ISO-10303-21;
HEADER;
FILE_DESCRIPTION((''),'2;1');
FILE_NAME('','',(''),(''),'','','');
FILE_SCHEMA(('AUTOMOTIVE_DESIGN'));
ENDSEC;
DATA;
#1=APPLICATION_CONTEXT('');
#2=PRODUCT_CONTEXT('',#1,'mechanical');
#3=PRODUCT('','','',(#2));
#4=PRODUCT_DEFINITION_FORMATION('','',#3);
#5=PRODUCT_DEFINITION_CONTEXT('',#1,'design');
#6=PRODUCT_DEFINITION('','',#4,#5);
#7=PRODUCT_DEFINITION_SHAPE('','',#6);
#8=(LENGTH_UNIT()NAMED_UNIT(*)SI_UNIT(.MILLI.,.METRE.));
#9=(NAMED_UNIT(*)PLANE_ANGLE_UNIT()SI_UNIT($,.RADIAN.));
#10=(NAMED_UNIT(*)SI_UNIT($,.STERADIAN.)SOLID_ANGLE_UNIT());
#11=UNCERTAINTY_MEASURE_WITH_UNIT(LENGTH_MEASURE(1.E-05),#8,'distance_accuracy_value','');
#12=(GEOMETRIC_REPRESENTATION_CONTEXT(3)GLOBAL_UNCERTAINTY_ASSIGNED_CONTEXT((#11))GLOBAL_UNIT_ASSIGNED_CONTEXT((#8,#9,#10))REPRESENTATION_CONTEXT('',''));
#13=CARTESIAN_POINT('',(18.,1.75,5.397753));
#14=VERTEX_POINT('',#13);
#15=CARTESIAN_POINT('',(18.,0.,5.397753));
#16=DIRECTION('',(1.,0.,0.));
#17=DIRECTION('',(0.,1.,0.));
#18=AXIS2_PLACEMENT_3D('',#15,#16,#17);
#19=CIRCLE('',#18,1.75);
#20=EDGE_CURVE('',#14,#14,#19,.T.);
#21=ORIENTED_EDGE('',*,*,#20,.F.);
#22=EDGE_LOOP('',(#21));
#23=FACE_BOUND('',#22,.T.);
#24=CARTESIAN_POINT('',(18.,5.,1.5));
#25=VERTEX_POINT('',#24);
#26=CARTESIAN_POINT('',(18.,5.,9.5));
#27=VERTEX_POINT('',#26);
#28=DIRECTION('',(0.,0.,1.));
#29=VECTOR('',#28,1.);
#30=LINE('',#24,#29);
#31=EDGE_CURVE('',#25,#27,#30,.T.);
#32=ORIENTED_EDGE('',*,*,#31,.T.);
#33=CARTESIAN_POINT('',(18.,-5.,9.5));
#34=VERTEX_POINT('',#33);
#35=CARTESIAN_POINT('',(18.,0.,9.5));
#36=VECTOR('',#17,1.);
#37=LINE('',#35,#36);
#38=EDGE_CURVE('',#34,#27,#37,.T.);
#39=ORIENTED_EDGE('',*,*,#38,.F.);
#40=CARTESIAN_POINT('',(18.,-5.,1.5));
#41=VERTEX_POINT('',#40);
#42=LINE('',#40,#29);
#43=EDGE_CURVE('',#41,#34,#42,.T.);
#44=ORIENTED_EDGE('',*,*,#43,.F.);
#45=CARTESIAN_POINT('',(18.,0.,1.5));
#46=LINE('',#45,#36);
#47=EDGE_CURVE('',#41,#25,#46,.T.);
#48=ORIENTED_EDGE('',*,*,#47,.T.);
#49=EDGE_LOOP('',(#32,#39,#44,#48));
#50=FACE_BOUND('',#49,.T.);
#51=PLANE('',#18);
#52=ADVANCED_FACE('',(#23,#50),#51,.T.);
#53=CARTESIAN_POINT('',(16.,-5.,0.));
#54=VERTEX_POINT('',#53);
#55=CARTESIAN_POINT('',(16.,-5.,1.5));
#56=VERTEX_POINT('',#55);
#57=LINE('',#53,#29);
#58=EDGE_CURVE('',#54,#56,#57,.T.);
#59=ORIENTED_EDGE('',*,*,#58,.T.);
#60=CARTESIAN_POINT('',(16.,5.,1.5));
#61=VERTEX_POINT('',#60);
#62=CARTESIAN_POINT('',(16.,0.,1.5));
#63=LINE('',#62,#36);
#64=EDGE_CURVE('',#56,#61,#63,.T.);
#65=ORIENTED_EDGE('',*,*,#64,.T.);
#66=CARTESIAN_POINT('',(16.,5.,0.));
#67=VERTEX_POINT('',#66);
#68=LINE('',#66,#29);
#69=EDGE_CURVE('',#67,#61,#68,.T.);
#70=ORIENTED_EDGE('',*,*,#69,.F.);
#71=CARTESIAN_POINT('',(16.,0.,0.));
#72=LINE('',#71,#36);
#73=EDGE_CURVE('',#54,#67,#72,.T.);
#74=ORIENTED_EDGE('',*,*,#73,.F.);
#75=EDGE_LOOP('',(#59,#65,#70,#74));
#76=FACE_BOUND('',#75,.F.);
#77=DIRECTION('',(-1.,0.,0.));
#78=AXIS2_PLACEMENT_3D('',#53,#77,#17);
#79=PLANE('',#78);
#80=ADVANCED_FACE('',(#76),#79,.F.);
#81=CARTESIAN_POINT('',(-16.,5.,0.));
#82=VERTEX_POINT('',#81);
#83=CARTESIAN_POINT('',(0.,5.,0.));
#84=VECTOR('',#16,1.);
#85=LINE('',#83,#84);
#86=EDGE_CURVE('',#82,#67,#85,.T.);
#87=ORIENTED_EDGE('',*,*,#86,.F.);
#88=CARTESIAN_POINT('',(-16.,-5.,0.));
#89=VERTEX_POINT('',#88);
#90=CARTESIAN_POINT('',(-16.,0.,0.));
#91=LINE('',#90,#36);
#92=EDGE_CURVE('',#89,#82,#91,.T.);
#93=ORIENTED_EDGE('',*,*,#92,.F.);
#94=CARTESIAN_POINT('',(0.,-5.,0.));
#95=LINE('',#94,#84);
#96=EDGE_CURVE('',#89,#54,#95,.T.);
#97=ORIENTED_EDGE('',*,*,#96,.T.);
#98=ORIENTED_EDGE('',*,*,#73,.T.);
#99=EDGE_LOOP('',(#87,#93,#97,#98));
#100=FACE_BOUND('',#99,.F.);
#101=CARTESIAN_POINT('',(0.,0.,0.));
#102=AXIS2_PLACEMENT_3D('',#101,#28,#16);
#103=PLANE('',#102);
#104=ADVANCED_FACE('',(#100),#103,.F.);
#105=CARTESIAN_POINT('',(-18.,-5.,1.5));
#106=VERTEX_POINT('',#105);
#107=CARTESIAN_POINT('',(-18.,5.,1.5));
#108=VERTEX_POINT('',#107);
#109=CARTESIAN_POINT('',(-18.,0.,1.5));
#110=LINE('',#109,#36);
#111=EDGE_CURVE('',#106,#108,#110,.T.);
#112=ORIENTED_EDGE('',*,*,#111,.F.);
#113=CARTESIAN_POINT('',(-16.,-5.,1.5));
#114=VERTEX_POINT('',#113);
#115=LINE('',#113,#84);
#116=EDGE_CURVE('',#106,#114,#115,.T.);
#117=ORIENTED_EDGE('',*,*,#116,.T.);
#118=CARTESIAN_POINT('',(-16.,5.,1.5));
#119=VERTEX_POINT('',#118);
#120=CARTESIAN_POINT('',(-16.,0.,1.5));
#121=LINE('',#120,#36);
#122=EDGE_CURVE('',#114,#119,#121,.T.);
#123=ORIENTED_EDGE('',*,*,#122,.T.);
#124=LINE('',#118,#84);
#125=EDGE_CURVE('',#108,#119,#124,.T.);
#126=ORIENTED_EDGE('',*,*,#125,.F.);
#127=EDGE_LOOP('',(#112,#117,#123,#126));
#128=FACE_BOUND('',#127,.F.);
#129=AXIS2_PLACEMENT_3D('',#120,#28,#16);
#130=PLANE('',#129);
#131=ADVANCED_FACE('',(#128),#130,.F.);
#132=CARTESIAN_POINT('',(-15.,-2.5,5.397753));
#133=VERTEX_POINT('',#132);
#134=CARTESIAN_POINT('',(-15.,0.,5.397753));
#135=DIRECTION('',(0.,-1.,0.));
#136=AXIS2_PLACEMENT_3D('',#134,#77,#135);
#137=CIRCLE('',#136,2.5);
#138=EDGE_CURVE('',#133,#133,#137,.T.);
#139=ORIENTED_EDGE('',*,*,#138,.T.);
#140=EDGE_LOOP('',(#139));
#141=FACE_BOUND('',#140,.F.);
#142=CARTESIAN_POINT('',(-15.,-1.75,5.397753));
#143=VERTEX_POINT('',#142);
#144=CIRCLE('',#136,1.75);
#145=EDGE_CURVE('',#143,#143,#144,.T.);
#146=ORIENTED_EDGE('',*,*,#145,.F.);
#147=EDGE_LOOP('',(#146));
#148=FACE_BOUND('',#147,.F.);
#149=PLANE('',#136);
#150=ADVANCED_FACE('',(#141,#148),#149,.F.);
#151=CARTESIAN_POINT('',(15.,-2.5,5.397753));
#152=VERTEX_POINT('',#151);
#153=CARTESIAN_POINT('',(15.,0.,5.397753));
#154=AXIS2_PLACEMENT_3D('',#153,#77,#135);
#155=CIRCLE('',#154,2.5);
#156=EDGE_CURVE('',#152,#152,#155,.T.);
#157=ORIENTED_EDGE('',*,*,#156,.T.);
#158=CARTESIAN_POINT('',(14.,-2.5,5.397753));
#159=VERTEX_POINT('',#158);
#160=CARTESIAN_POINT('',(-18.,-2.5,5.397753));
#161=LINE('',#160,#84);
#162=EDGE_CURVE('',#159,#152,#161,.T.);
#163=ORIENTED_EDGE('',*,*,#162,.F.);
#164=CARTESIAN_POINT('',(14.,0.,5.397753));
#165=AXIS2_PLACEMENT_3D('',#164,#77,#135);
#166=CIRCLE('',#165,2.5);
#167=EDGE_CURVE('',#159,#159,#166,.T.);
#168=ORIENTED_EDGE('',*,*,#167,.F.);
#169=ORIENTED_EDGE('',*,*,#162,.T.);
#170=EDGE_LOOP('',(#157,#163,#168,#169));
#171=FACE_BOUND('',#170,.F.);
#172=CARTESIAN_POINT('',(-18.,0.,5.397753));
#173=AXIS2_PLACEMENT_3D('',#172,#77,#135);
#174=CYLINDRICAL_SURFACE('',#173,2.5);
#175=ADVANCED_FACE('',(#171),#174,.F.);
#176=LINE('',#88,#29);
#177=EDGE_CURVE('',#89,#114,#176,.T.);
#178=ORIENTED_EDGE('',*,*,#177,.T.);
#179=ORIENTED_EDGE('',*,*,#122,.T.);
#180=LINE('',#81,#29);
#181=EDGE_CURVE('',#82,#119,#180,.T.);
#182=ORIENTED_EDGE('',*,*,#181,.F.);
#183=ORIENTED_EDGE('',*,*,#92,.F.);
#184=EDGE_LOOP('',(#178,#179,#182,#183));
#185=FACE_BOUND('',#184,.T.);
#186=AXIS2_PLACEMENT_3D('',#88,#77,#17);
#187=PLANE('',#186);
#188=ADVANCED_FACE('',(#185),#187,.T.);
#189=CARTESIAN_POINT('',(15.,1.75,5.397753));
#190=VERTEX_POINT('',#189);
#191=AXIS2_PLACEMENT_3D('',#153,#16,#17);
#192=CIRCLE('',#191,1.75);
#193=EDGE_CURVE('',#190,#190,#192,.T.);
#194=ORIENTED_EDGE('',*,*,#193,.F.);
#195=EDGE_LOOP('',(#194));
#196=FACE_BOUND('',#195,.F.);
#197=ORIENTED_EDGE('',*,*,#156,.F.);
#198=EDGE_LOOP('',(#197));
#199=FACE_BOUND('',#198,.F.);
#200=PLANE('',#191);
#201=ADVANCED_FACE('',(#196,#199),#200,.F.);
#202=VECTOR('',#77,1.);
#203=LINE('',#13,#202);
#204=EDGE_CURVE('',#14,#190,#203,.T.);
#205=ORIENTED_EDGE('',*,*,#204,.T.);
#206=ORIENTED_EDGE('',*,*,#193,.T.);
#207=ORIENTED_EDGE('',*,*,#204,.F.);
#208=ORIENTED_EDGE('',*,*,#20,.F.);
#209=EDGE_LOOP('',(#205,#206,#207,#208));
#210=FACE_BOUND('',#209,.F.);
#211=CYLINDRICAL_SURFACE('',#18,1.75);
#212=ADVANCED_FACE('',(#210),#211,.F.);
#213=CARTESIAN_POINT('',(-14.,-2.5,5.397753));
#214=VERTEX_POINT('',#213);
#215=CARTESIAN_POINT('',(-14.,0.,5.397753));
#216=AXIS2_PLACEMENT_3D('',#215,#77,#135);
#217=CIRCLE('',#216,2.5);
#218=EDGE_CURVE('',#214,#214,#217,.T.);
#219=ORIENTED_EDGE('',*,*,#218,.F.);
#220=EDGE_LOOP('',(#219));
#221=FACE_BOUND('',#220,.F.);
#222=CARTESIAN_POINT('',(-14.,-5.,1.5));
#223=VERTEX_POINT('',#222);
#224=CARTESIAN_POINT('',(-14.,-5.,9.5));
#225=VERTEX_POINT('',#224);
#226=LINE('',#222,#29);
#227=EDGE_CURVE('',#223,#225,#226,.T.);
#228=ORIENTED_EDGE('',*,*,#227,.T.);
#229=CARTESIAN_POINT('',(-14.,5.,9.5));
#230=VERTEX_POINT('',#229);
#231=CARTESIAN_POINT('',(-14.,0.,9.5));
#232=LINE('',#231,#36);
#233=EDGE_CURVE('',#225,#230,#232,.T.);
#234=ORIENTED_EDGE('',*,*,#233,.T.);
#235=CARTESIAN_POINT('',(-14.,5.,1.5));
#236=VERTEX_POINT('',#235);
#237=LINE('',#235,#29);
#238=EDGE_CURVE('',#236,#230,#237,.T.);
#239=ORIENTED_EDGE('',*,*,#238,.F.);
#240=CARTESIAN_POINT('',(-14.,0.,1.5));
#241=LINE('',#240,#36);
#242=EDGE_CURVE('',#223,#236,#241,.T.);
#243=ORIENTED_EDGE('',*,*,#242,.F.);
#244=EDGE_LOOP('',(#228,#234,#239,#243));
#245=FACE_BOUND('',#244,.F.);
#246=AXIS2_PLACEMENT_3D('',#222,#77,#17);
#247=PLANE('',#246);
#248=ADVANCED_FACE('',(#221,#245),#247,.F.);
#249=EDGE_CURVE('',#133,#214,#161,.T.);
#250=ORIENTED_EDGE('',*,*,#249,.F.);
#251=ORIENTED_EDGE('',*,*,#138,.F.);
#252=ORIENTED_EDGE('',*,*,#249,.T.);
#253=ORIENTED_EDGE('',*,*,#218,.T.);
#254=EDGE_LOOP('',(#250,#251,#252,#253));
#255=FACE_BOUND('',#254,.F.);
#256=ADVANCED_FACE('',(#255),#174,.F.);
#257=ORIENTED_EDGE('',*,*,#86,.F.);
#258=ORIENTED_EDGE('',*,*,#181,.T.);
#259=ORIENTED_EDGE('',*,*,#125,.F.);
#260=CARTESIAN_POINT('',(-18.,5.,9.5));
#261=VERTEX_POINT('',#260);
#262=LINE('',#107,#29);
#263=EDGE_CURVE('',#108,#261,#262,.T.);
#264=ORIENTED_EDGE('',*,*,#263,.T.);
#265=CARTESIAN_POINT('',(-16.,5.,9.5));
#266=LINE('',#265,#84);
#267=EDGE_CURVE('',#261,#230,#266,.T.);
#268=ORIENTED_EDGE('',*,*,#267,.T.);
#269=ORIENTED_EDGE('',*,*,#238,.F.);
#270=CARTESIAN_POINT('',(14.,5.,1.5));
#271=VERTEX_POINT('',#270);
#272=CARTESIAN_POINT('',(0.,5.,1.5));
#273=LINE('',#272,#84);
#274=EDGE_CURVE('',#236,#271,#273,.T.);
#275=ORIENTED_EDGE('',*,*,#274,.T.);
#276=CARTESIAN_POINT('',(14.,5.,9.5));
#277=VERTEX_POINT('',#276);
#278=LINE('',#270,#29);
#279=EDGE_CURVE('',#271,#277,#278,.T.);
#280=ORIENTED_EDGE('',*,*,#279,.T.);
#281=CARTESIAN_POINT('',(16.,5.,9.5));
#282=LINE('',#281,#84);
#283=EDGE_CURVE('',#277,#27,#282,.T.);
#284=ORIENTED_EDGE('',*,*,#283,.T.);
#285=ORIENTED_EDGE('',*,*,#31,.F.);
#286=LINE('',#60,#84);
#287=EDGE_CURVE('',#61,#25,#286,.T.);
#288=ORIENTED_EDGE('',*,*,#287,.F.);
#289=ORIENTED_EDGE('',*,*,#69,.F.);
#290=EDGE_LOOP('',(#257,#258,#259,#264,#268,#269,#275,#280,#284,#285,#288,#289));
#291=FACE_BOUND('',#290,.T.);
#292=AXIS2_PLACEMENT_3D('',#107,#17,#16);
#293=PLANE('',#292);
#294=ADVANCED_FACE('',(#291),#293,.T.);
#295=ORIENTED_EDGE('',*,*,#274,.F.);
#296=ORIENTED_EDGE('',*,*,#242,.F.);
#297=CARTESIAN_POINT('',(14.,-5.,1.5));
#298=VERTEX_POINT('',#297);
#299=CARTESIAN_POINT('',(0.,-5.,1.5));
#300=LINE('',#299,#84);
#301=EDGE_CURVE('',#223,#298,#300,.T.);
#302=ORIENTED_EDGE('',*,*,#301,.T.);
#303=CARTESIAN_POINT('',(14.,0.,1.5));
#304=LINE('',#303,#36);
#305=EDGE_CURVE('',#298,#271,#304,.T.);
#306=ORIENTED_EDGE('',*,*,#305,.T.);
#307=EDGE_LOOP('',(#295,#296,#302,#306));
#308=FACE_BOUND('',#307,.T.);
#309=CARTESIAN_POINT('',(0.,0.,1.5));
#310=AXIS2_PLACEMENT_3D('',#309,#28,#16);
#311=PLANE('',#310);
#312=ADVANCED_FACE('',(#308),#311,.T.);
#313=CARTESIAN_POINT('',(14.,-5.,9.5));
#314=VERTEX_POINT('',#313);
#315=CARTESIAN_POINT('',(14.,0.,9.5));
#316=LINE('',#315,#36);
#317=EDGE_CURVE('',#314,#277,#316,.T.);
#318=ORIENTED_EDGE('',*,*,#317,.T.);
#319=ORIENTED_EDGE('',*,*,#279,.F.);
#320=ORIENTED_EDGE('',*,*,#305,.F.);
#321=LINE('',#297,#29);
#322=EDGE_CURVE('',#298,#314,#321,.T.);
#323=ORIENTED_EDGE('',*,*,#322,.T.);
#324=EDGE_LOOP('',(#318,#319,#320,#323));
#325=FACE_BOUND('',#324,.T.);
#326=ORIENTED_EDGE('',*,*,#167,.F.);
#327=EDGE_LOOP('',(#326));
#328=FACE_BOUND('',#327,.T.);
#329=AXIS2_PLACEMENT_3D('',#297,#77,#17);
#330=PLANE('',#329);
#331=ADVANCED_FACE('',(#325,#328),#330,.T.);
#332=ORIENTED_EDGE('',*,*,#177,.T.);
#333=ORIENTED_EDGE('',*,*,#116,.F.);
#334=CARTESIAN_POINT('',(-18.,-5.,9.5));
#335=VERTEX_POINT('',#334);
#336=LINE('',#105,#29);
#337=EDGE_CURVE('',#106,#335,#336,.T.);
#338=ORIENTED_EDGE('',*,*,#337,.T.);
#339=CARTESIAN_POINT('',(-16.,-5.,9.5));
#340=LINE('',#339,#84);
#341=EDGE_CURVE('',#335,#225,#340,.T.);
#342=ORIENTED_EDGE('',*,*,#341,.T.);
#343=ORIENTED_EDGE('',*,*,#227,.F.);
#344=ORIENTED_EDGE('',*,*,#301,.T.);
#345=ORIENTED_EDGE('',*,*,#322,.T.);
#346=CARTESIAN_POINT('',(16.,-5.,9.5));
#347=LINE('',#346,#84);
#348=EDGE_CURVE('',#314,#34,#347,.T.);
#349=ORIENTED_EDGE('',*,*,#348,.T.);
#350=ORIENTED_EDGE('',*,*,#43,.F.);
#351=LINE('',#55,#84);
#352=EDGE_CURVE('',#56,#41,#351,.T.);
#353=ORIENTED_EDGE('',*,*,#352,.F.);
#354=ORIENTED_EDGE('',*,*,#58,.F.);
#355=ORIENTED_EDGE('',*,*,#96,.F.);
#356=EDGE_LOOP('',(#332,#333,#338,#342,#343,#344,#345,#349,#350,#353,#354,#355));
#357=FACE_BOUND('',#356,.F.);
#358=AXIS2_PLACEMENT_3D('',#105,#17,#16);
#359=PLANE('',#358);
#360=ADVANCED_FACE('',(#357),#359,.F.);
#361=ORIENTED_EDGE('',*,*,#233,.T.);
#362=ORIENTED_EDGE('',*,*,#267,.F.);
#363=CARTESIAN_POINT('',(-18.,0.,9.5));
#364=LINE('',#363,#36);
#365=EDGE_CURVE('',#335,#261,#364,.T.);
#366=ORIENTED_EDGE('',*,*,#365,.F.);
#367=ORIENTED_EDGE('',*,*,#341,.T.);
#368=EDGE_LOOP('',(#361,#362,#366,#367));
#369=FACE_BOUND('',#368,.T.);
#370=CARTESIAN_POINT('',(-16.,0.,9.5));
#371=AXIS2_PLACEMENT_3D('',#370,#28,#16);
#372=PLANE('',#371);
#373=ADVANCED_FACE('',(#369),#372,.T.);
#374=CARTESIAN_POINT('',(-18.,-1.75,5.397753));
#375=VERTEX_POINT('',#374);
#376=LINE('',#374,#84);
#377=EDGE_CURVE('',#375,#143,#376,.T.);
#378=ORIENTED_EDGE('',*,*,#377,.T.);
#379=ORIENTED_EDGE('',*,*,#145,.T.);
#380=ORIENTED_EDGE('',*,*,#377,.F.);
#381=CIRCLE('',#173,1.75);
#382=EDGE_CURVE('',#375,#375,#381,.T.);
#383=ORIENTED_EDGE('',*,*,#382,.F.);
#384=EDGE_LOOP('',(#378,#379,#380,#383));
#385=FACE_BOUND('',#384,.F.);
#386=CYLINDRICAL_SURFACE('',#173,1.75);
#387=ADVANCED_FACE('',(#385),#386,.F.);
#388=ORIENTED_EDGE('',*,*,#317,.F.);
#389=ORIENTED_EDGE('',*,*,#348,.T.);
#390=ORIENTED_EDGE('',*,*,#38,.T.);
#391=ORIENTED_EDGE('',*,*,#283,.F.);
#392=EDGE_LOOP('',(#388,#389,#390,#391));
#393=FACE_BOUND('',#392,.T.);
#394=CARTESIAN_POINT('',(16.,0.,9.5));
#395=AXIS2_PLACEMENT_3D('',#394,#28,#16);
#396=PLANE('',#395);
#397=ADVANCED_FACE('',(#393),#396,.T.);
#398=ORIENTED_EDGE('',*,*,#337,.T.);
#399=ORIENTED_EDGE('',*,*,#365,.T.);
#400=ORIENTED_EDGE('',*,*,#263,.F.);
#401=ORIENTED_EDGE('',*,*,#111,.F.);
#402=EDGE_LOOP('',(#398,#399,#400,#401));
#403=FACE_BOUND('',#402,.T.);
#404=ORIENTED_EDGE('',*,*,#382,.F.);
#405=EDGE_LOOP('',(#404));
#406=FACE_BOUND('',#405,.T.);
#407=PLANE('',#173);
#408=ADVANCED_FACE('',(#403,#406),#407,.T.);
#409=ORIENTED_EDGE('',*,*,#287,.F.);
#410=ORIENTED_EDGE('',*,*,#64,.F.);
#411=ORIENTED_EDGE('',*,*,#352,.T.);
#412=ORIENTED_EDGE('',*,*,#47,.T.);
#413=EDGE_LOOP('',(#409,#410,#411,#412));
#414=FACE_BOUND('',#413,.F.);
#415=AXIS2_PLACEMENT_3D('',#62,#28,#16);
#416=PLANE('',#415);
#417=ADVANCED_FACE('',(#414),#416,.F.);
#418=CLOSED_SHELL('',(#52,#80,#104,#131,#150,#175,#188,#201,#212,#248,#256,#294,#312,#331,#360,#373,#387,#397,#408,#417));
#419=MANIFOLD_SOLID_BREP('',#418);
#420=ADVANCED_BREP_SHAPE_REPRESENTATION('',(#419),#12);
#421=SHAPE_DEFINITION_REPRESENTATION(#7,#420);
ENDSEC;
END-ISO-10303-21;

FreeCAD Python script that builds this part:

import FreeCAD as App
import Part
import Sketcher


def add_polygon(sketch, points):
    """Adds a closed chain of lines whose ends are joined by coincident constraints."""
    first, n = sketch.GeometryCount, len(points)
    for a, b in zip(points, points[1:] + points[:1]):
        sketch.addGeometry(Part.LineSegment(App.Vector(*a, 0), App.Vector(*b, 0)), False)
    for i in range(n):
        sketch.addConstraint(Sketcher.Constraint("Coincident", first + i, 2, first + (i + 1) % n, 1))

doc = App.newDocument("Part")
body = doc.addObject("PartDesign::Body", "Body")

# Sketch on XY plane
sketch1 = body.newObject("Sketcher::SketchObject", "Sketch")
sketch1.AttachmentSupport = (doc.getObject("XY_Plane"), [""])
sketch1.MapMode = "FlatFace"
add_polygon(sketch1, [(-16, 5), (-16, -5), (16, -5), (16, 5)])  # lines 0-3
sketch1.addConstraint([
    Sketcher.Constraint("Vertical", 0),
    Sketcher.Constraint("Horizontal", 1),
    Sketcher.Constraint("Vertical", 2),
    Sketcher.Constraint("Horizontal", 3),
    Sketcher.Constraint("Symmetric", 0, 2, 2, 2, -1, 1),
    Sketcher.Constraint("DistanceX", 1, 1, 1, 2, 32.0),
    Sketcher.Constraint("DistanceY", 0, 2, 0, 1, 10.0),
])
pad1 = body.newObject("PartDesign::Pad", "Pad")
pad1.Profile = sketch1
pad1.Length = 1.5

# Sketch on XY plane
sketch2 = body.newObject("Sketcher::SketchObject", "Sketch001")
sketch2.AttachmentSupport = (doc.getObject("XY_Plane"), [""])
sketch2.MapMode = "FlatFace"
sketch2.AttachmentOffset = App.Placement(App.Vector(0, 0, 1.5), App.Rotation())
add_polygon(sketch2, [(-18, 5), (-18, -5), (-14, -5), (-14, 5)])  # lines 0-3
add_polygon(sketch2, [(14, 5), (14, -5), (18, -5), (18, 5)])  # lines 4-7
sketch2.addConstraint([
    Sketcher.Constraint("Vertical", 0),
    Sketcher.Constraint("Horizontal", 1),
    Sketcher.Constraint("Vertical", 2),
    Sketcher.Constraint("Horizontal", 3),
    Sketcher.Constraint("Vertical", 4),
    Sketcher.Constraint("Horizontal", 5),
    Sketcher.Constraint("Vertical", 6),
    Sketcher.Constraint("Horizontal", 7),
    Sketcher.Constraint("Symmetric", 2, 2, 4, 2, -1, 1),
    Sketcher.Constraint("Symmetric", 0, 2, 6, 2, -1, 1),
    Sketcher.Constraint("Horizontal", 1, 2, 4, 2),
    Sketcher.Constraint("DistanceX", 1, 1, 1, 2, 4.0),
    Sketcher.Constraint("DistanceY", 0, 2, 0, 1, 10.0),
    Sketcher.Constraint("DistanceX", 0, 2, -1, 1, 18.0),
])
pad2 = body.newObject("PartDesign::Pad", "Pad001")
pad2.Profile = sketch2
pad2.Length = 8

# Sketch on YZ plane
sketch3 = body.newObject("Sketcher::SketchObject", "Sketch002")
sketch3.AttachmentSupport = (doc.getObject("YZ_Plane"), [""])
sketch3.MapMode = "FlatFace"
sketch3.AttachmentOffset = App.Placement(App.Vector(0, 0, -18), App.Rotation())
sketch3.addGeometry(Part.Circle(App.Vector(0, 5.4, 0), App.Vector(0, 0, 1), 2.5), False)
sketch3.addConstraint([
    Sketcher.Constraint("PointOnObject", 0, 3, -2),
    Sketcher.Constraint("Diameter", 0, 5.0),
    Sketcher.Constraint("DistanceY", -1, 1, 0, 3, 5.397753),
])
pocket1 = body.newObject("PartDesign::Pocket", "Pocket")
pocket1.Profile = sketch3
pocket1.Length = 50
pocket1.Reversed = True

# Sketch on YZ plane
sketch4 = body.newObject("Sketcher::SketchObject", "Sketch003")
sketch4.AttachmentSupport = (doc.getObject("YZ_Plane"), [""])
sketch4.MapMode = "FlatFace"
sketch4.AttachmentOffset = App.Placement(App.Vector(0, 0, -18), App.Rotation())
sketch4.addGeometry([
    Part.Circle(App.Vector(0, 5.4, 0), App.Vector(0, 0, 1), 2.5),
    Part.Circle(App.Vector(0, 5.4, 0), App.Vector(0, 0, 1), 1.8),
], False)
sketch4.addConstraint([
    Sketcher.Constraint("Coincident", 1, 3, 0, 3),
    Sketcher.Constraint("PointOnObject", 0, 3, -2),
    Sketcher.Constraint("Diameter", 0, 5.0),
    Sketcher.Constraint("Diameter", 1, 3.5),
    Sketcher.Constraint("DistanceY", -1, 1, 0, 3, 5.397753),
])
pad3 = body.newObject("PartDesign::Pad", "Pad002")
pad3.Profile = sketch4
pad3.Length = 3

# Sketch on YZ plane
sketch5 = body.newObject("Sketcher::SketchObject", "Sketch004")
sketch5.AttachmentSupport = (doc.getObject("YZ_Plane"), [""])
sketch5.MapMode = "FlatFace"
sketch5.AttachmentOffset = App.Placement(App.Vector(0, 0, 18), App.Rotation())
sketch5.addGeometry([
    Part.Circle(App.Vector(0, 5.4, 0), App.Vector(0, 0, 1), 2.5),
    Part.Circle(App.Vector(0, 5.4, 0), App.Vector(0, 0, 1), 1.8),
], False)
sketch5.addConstraint([
    Sketcher.Constraint("Coincident", 1, 3, 0, 3),
    Sketcher.Constraint("PointOnObject", 0, 3, -2),
    Sketcher.Constraint("Diameter", 0, 5.0),
    Sketcher.Constraint("Diameter", 1, 3.5),
    Sketcher.Constraint("DistanceY", -1, 1, 0, 3, 5.397753),
])
pad4 = body.newObject("PartDesign::Pad", "Pad003")
pad4.Profile = sketch5
pad4.Length = 3
pad4.Reversed = True

doc.recompute()
